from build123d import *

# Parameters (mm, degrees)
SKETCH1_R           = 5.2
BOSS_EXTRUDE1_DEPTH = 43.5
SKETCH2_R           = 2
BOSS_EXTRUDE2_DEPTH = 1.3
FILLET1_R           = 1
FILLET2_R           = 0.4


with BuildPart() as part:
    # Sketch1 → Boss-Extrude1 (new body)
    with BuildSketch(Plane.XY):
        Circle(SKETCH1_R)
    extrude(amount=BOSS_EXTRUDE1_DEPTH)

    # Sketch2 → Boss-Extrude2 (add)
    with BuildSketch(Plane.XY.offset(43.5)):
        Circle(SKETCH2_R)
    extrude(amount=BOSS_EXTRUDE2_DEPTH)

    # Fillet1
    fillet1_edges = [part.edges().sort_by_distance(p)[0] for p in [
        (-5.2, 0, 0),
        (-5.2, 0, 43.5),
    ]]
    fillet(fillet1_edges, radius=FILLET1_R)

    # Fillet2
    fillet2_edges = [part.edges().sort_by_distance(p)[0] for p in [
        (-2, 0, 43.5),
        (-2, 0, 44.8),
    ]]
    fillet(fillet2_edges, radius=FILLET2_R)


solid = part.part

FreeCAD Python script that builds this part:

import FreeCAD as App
import Part
import Sketcher

V = App.Vector
Q = App.Units.Quantity


def edges_at(feature, points):
    """Names of the edges that pass closest to the given points."""
    edges = feature.Shape.Edges
    near = lambda p: min(range(len(edges)), key=lambda i: edges[i].distToShape(Part.Vertex(*p))[0])
    return sorted({f"Edge{near(p) + 1}" for p in points})

doc = App.newDocument("Part")
body = doc.addObject("PartDesign::Body", "Body")

sketch1 = body.newObject("Sketcher::SketchObject", "Sketch")
sketch1.AttachmentSupport = (doc.getObject("XY_Plane"), [""])
sketch1.MapMode = "FlatFace"
sketch1.addGeometry(Part.Circle(V(0, 0, 0), V(0, 0, 1), 5.2), False)
sketch1.addConstraint([
    Sketcher.Constraint("Coincident", 0, 3, -1, 1),
    Sketcher.Constraint("Diameter", 0, Q("10.4 mm")),
])
pad1 = body.newObject("PartDesign::Pad", "Pad")
pad1.Profile = sketch1
pad1.Length = 43.5

sketch2 = body.newObject("Sketcher::SketchObject", "Sketch001")
sketch2.AttachmentSupport = (doc.getObject("XY_Plane"), [""])
sketch2.MapMode = "FlatFace"
sketch2.AttachmentOffset = App.Placement(V(0, 0, 43.5), App.Rotation())
sketch2.addGeometry(Part.Circle(V(0, 0, 0), V(0, 0, 1), 2), False)
sketch2.addConstraint([
    Sketcher.Constraint("Coincident", 0, 3, -1, 1),
    Sketcher.Constraint("Diameter", 0, Q("4 mm")),
])
pad2 = body.newObject("PartDesign::Pad", "Pad001")
pad2.Profile = sketch2
pad2.Length = 1.3
doc.recompute()

fillet = body.newObject("PartDesign::Fillet", "Fillet")
fillet.Base = (pad2, edges_at(pad2, [(-5.2, 0, 0), (-5.2, 0, 43.5)]))
fillet.Radius = 1
doc.recompute()

fillet2 = body.newObject("PartDesign::Fillet", "Fillet001")
fillet2.Base = (fillet, edges_at(fillet, [(-2, 0, 43.5), (-2, 0, 44.8)]))
fillet2.Radius = 0.4

doc.recompute()
